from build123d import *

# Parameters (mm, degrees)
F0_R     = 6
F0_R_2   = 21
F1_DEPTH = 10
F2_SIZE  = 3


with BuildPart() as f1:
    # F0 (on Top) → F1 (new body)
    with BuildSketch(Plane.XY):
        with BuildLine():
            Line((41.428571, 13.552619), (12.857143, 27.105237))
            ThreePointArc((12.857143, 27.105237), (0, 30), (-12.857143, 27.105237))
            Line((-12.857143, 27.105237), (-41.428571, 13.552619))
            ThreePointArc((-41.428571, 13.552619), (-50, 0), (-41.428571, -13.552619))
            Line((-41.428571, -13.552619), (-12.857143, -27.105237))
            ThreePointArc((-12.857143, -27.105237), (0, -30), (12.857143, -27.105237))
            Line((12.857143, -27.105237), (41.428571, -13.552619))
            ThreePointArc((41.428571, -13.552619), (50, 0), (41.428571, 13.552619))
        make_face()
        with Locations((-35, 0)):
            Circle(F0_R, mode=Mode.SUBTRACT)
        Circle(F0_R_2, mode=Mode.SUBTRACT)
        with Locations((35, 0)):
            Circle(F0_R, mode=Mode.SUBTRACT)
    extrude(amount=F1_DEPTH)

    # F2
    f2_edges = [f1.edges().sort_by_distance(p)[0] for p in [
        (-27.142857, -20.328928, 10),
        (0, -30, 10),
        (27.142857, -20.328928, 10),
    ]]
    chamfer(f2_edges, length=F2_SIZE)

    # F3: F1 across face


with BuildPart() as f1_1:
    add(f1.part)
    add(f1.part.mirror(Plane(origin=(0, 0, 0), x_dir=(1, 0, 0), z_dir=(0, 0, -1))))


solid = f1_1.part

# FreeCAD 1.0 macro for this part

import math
import FreeCAD as App
import Part
import Sketcher
from FreeCAD import Vector
Q = App.Units.Quantity


def edges_at(feature, points):
    """Names of the edges that pass closest to the given points."""
    edges = feature.Shape.Edges
    near = lambda p: min(range(len(edges)), key=lambda i: edges[i].distToShape(Part.Vertex(*p))[0])
    return sorted({f"Edge{near(p) + 1}" for p in points})

doc = App.newDocument("Part")
body = doc.addObject("PartDesign::Body", "Body")

sketch1 = doc.addObject("Sketcher::SketchObject", "Sketch")
body.addObject(sketch1)
sketch1.AttachmentSupport = (doc.XY_Plane, [""])
sketch1.MapMode = "FlatFace"
sketch1.addGeometry([
    Part.LineSegment(Vector(41, 14, 0), Vector(13, 27, 0)),
    Part.ArcOfCircle(Part.Circle(Vector(0, 0, 0), Vector(0, 0, 1), 30), math.radians(65), math.radians(115)),
    Part.LineSegment(Vector(-13, 27, 0), Vector(-41, 14, 0)),
    Part.ArcOfCircle(Part.Circle(Vector(-35, 0, 0), Vector(0, 0, 1), 15), math.radians(115), math.radians(245)),
    Part.LineSegment(Vector(-41, -14, 0), Vector(-13, -27, 0)),
    Part.ArcOfCircle(Part.Circle(Vector(0, 0, 0), Vector(0, 0, 1), 30), math.radians(-115), math.radians(-65)),
    Part.LineSegment(Vector(13, -27, 0), Vector(41, -14, 0)),
    Part.ArcOfCircle(Part.Circle(Vector(35, 0, 0), Vector(0, 0, 1), 15), math.radians(-65), math.radians(65)),
    Part.Circle(Vector(-35, 0, 0), Vector(0, 0, 1), 6),
    Part.Circle(Vector(0, 0, 0), Vector(0, 0, 1), 21),
    Part.Circle(Vector(35, 0, 0), Vector(0, 0, 1), 6),
], False)
sketch1.addConstraint([
    Sketcher.Constraint("Tangent", 0, 2, 1, 1),
    Sketcher.Constraint("Tangent", 1, 2, 2, 1),
    Sketcher.Constraint("Tangent", 2, 2, 3, 1),
    Sketcher.Constraint("Tangent", 3, 2, 4, 1),
    Sketcher.Constraint("Tangent", 4, 2, 5, 1),
    Sketcher.Constraint("Tangent", 5, 2, 6, 1),
    Sketcher.Constraint("Tangent", 6, 2, 7, 1),
    Sketcher.Constraint("Tangent", 7, 2, 0, 1),
    Sketcher.Constraint("Coincident", 1, 3, -1, 1),
    Sketcher.Constraint("Coincident", 5, 3, -1, 1),
    Sketcher.Constraint("Coincident", 9, 3, -1, 1),
    Sketcher.Constraint("Coincident", 8, 3, 3, 3),
    Sketcher.Constraint("Coincident", 10, 3, 7, 3),
    Sketcher.Constraint("Equal", 1, 5),
    Sketcher.Constraint("Equal", 3, 7),
    Sketcher.Constraint("Equal", 8, 10),
    Sketcher.Constraint("Symmetric", 3, 3, 7, 3, -1, 1),
    Sketcher.Constraint("PointOnObject", 3, 3, -1),
    Sketcher.Constraint("Diameter", 8, Q("12 mm")),
    Sketcher.Constraint("Diameter", 9, Q("42 mm")),
    Sketcher.Constraint("Radius", 1, Q("30 mm")),
    Sketcher.Constraint("Radius", 3, Q("15 mm")),
    Sketcher.Constraint("DistanceX", 3, 3, -1, 1, Q("35 mm")),
])
pad1 = doc.addObject("PartDesign::Pad", "Pad")
body.addObject(pad1)
pad1.Profile = sketch1
pad1.Length = 10
doc.recompute()

chamfer = doc.addObject("PartDesign::Chamfer", "Chamfer")
body.addObject(chamfer)
chamfer.Base = (pad1, edges_at(pad1, [(-27.143, -20.329, 10), (0, -30, 10), (27.143, -20.329, 10)]))
chamfer.Size = 3
body2 = doc.addObject("PartDesign::Body", "Body001")
doc.recompute()

body2.BaseFeature = body
doc.recompute()

mirroring = doc.addObject("Part::Mirroring", "Mirroring")
mirroring.Source = body
mirroring.Base = Vector(0, 0, 0)
mirroring.Normal = Vector(0, 0, -1)
body3 = doc.addObject("PartDesign::Body", "Body002")
body3.BaseFeature = mirroring
boolean = doc.addObject("PartDesign::Boolean", "Boolean")
body2.addObject(boolean)
boolean.Type = "Fuse"
boolean.addObjects([body3])
doc.recompute()
mirroring.Visibility = False

doc.recompute()
